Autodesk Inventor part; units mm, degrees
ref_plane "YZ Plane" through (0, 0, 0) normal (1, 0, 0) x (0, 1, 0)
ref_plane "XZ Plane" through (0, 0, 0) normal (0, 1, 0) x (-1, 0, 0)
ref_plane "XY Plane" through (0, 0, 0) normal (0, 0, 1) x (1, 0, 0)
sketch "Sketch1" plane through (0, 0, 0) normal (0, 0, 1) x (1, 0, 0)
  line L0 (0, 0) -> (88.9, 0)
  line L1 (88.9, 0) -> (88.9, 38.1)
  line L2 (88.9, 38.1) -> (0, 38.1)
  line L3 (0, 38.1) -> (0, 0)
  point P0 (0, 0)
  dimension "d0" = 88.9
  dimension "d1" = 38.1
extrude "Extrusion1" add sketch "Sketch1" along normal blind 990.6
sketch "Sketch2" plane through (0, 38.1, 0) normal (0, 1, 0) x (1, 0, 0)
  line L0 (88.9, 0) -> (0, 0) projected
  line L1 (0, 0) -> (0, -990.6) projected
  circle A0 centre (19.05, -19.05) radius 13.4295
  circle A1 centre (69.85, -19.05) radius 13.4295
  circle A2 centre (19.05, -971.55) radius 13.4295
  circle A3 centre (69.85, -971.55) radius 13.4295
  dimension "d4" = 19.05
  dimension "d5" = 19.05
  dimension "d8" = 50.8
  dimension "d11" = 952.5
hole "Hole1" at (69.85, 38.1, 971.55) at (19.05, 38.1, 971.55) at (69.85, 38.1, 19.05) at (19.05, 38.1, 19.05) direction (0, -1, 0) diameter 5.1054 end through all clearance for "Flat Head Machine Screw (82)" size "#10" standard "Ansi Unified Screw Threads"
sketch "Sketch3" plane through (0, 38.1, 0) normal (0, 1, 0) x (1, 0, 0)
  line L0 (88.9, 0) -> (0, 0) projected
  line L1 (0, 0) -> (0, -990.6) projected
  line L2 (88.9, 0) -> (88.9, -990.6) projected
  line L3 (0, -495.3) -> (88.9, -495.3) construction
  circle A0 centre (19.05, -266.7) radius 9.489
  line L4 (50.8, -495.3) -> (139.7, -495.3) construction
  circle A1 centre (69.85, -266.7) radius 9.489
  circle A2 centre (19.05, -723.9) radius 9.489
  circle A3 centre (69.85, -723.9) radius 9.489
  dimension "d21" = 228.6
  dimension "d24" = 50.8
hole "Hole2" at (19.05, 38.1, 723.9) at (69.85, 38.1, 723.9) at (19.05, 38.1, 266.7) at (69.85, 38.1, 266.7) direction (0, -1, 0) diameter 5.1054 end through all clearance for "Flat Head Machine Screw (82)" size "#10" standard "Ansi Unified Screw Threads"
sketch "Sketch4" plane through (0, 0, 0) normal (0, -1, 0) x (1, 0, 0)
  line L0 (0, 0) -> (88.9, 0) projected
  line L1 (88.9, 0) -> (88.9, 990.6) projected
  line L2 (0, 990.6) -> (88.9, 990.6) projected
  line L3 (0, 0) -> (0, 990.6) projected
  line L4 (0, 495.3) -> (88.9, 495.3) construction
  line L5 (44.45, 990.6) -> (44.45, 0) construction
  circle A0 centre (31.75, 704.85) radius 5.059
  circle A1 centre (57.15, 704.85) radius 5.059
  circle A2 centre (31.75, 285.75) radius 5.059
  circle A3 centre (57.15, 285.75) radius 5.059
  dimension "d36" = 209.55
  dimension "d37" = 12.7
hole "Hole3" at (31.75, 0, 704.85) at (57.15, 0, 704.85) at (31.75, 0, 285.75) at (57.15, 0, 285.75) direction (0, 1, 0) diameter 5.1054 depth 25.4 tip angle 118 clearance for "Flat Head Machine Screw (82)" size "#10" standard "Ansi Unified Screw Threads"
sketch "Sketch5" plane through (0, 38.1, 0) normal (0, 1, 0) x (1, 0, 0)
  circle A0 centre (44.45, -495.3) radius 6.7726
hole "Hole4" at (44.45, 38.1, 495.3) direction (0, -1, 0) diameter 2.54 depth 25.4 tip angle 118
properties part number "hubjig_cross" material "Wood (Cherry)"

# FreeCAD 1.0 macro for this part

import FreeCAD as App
import Part
import Sketcher
Q = App.Units.Quantity

doc = App.newDocument("Part")
body = doc.addObject("PartDesign::Body", "Body")

# Sketch on XY plane
sketch1 = doc.addObject("Sketcher::SketchObject", "Sketch")
body.addObject(sketch1)
sketch1.AttachmentSupport = (doc.XY_Plane, [""])
sketch1.MapMode = "FlatFace"
sketch1.addGeometry([
    Part.LineSegment(App.Vector(0, 38.1, 0), App.Vector(0, 0, 0)),
    Part.LineSegment(App.Vector(0, 0, 0), App.Vector(88.9, 0, 0)),
    Part.LineSegment(App.Vector(88.9, 0, 0), App.Vector(88.9, 38.1, 0)),
    Part.LineSegment(App.Vector(88.9, 38.1, 0), App.Vector(0, 38.1, 0)),
], False)
sketch1.addConstraint([
    Sketcher.Constraint("Coincident", 0, 2, 1, 1),
    Sketcher.Constraint("Coincident", 1, 2, 2, 1),
    Sketcher.Constraint("Coincident", 2, 2, 3, 1),
    Sketcher.Constraint("Coincident", 3, 2, 0, 1),
    Sketcher.Constraint("Vertical", 0),
    Sketcher.Constraint("Horizontal", 1),
    Sketcher.Constraint("Vertical", 2),
    Sketcher.Constraint("Horizontal", 3),
    Sketcher.Constraint("Coincident", 0, 2, -1, 1),
    Sketcher.Constraint("DistanceX", 1, 1, 1, 2, Q("3.5 in")),
    Sketcher.Constraint("DistanceY", 0, 2, 0, 1, Q("1.5 in")),
])
pad1 = doc.addObject("PartDesign::Pad", "Pad")
body.addObject(pad1)
pad1.Profile = sketch1
pad1.Length = Q("39 in")

# Sketch on XZ plane
sketch2 = doc.addObject("Sketcher::SketchObject", "Sketch001")
body.addObject(sketch2)
sketch2.AttachmentSupport = (doc.XZ_Plane, [""])
sketch2.MapMode = "FlatFace"
sketch2.AttachmentOffset = App.Placement(App.Vector(0, 0, -1.5 * 25.4), App.Rotation())
sketch2.addGeometry([
    Part.Circle(App.Vector(69.85, 971.55, 0), App.Vector(0, 0, 1), 2.5527),
    Part.Circle(App.Vector(19.05, 971.55, 0), App.Vector(0, 0, 1), 2.5527),
    Part.Circle(App.Vector(69.85, 19.05, 0), App.Vector(0, 0, 1), 2.5527),
    Part.Circle(App.Vector(19.05, 19.05, 0), App.Vector(0, 0, 1), 2.5527),
], False)
sketch2.addConstraint([
    Sketcher.Constraint("Equal", 0, 1),
    Sketcher.Constraint("Equal", 1, 2),
    Sketcher.Constraint("Equal", 2, 3),
    Sketcher.Constraint("Horizontal", 0, 3, 1, 3),
    Sketcher.Constraint("Horizontal", 2, 3, 3, 3),
    Sketcher.Constraint("Vertical", 0, 3, 2, 3),
    Sketcher.Constraint("Vertical", 1, 3, 3, 3),
    Sketcher.Constraint("Diameter", 0, Q("0.201 in")),
    Sketcher.Constraint("DistanceX", 1, 3, 0, 3, Q("2 in")),
    Sketcher.Constraint("DistanceY", 2, 3, 0, 3, Q("37.5 in")),
    Sketcher.Constraint("DistanceX", -1, 1, 0, 3, Q("2.75 in")),
    Sketcher.Constraint("DistanceY", -1, 1, 0, 3, Q("38.25 in")),
])
doc.recompute()
hole = doc.addObject("PartDesign::Hole", "Hole")
body.addObject(hole)
hole.Profile = sketch2
hole.ThreadType = "None"
hole.Diameter = Q("0.201 in")
hole.DepthType = "ThroughAll"
hole.Reversed = True

# Sketch on XZ plane
sketch3 = doc.addObject("Sketcher::SketchObject", "Sketch002")
body.addObject(sketch3)
sketch3.AttachmentSupport = (doc.XZ_Plane, [""])
sketch3.MapMode = "FlatFace"
sketch3.AttachmentOffset = App.Placement(App.Vector(0, 0, -1.5 * 25.4), App.Rotation())
sketch3.addGeometry([
    Part.Circle(App.Vector(19.05, 723.9, 0), App.Vector(0, 0, 1), 2.5527),
    Part.Circle(App.Vector(69.85, 723.9, 0), App.Vector(0, 0, 1), 2.5527),
    Part.Circle(App.Vector(19.05, 266.7, 0), App.Vector(0, 0, 1), 2.5527),
    Part.Circle(App.Vector(69.85, 266.7, 0), App.Vector(0, 0, 1), 2.5527),
], False)
sketch3.addConstraint([
    Sketcher.Constraint("Equal", 0, 1),
    Sketcher.Constraint("Equal", 1, 2),
    Sketcher.Constraint("Equal", 2, 3),
    Sketcher.Constraint("Horizontal", 0, 3, 1, 3),
    Sketcher.Constraint("Horizontal", 2, 3, 3, 3),
    Sketcher.Constraint("Vertical", 0, 3, 2, 3),
    Sketcher.Constraint("Vertical", 1, 3, 3, 3),
    Sketcher.Constraint("Diameter", 0, Q("0.201 in")),
    Sketcher.Constraint("DistanceX", 0, 3, 1, 3, Q("2 in")),
    Sketcher.Constraint("DistanceY", 2, 3, 0, 3, Q("18 in")),
    Sketcher.Constraint("DistanceY", -1, 1, 0, 3, Q("28.5 in")),
    Sketcher.Constraint("DistanceX", -1, 1, 0, 3, Q("0.75 in")),
])
doc.recompute()
hole2 = doc.addObject("PartDesign::Hole", "Hole001")
body.addObject(hole2)
hole2.Profile = sketch3
hole2.ThreadType = "None"
hole2.Diameter = Q("0.201 in")
hole2.DepthType = "ThroughAll"
hole2.Reversed = True

# Sketch on XZ plane
sketch4 = doc.addObject("Sketcher::SketchObject", "Sketch003")
body.addObject(sketch4)
sketch4.AttachmentSupport = (doc.XZ_Plane, [""])
sketch4.MapMode = "FlatFace"
sketch4.addGeometry([
    Part.Circle(App.Vector(31.75, 704.85, 0), App.Vector(0, 0, 1), 2.5527),
    Part.Circle(App.Vector(57.15, 704.85, 0), App.Vector(0, 0, 1), 2.5527),
    Part.Circle(App.Vector(31.75, 285.75, 0), App.Vector(0, 0, 1), 2.5527),
    Part.Circle(App.Vector(57.15, 285.75, 0), App.Vector(0, 0, 1), 2.5527),
], False)
sketch4.addConstraint([
    Sketcher.Constraint("Equal", 0, 1),
    Sketcher.Constraint("Equal", 1, 2),
    Sketcher.Constraint("Equal", 2, 3),
    Sketcher.Constraint("Horizontal", 0, 3, 1, 3),
    Sketcher.Constraint("Horizontal", 2, 3, 3, 3),
    Sketcher.Constraint("Vertical", 0, 3, 2, 3),
    Sketcher.Constraint("Vertical", 1, 3, 3, 3),
    Sketcher.Constraint("Diameter", 0, Q("0.201 in")),
    Sketcher.Constraint("DistanceX", 0, 3, 1, 3, Q("1 in")),
    Sketcher.Constraint("DistanceY", 2, 3, 0, 3, Q("16.5 in")),
    Sketcher.Constraint("DistanceX", -1, 1, 0, 3, Q("1.25 in")),
    Sketcher.Constraint("DistanceY", -1, 1, 0, 3, Q("27.75 in")),
])
doc.recompute()
hole3 = doc.addObject("PartDesign::Hole", "Hole002")
body.addObject(hole3)
hole3.Profile = sketch4
hole3.ThreadType = "None"
hole3.Diameter = Q("0.201 in")
hole3.DepthType = "Dimension"
hole3.Depth = Q("1 in")
hole3.DrillPoint = "Angled"
hole3.DrillPointAngle = 118

# Sketch on XZ plane
sketch5 = doc.addObject("Sketcher::SketchObject", "Sketch004")
body.addObject(sketch5)
sketch5.AttachmentSupport = (doc.XZ_Plane, [""])
sketch5.MapMode = "FlatFace"
sketch5.AttachmentOffset = App.Placement(App.Vector(0, 0, -1.5 * 25.4), App.Rotation())
sketch5.addGeometry(Part.Circle(App.Vector(44.45, 495.3, 0), App.Vector(0, 0, 1), 1.27), False)
sketch5.addConstraint([
    Sketcher.Constraint("Diameter", 0, Q("0.1 in")),
    Sketcher.Constraint("DistanceY", -1, 1, 0, 3, Q("19.5 in")),
    Sketcher.Constraint("DistanceX", -1, 1, 0, 3, Q("1.75 in")),
])
doc.recompute()
hole4 = doc.addObject("PartDesign::Hole", "Hole003")
body.addObject(hole4)
hole4.Profile = sketch5
hole4.ThreadType = "None"
hole4.Diameter = Q("0.1 in")
hole4.DepthType = "Dimension"
hole4.Depth = Q("1 in")
hole4.DrillPoint = "Angled"
hole4.DrillPointAngle = 118
hole4.Reversed = True

doc.recompute()
